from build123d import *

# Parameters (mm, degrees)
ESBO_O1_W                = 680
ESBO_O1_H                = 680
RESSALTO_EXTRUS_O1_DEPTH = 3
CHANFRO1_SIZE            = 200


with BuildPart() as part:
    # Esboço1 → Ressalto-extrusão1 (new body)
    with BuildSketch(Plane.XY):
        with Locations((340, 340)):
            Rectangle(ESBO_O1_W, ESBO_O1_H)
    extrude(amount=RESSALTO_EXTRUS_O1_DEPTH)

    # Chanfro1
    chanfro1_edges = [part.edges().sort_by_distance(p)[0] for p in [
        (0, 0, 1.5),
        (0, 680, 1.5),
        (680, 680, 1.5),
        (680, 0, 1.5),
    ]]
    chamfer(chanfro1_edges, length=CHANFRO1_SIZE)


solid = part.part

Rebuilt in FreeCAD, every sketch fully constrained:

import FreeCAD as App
import Part
import Sketcher
from FreeCAD import Vector
Q = App.Units.Quantity


def edges_at(feature, points):
    """Names of the edges that pass closest to the given points."""
    edges = feature.Shape.Edges
    near = lambda p: min(range(len(edges)), key=lambda i: edges[i].distToShape(Part.Vertex(*p))[0])
    return sorted({f"Edge{near(p) + 1}" for p in points})

doc = App.newDocument("Part")
params = doc.addObject("Spreadsheet::Sheet", "Params")
for row, (alias, value) in enumerate([
    ("sketch1_width", "680 mm"),
    ("pad1_length", "3 mm"),
    ("chamfer_size", "200 mm"),
], start=1):
    params.set(f"A{row}", alias)
    params.set(f"B{row}", "=" + value)
    params.setAlias(f"B{row}", alias)

body = doc.addObject("PartDesign::Body", "Body")

# Sketch on XY plane
sketch1 = body.newObject("Sketcher::SketchObject", "Sketch")
sketch1.AttachmentSupport = (doc.getObject("XY_Plane"), [""])
sketch1.MapMode = "FlatFace"
sketch1.addGeometry([
    Part.LineSegment(Vector(0, 680, 0), Vector(0, 0, 0)),
    Part.LineSegment(Vector(0, 0, 0), Vector(680, 0, 0)),
    Part.LineSegment(Vector(680, 0, 0), Vector(680, 680, 0)),
    Part.LineSegment(Vector(680, 680, 0), Vector(0, 680, 0)),
], False)
sketch1.addConstraint([
    Sketcher.Constraint("Coincident", 0, 2, 1, 1),
    Sketcher.Constraint("Coincident", 1, 2, 2, 1),
    Sketcher.Constraint("Coincident", 2, 2, 3, 1),
    Sketcher.Constraint("Coincident", 3, 2, 0, 1),
    Sketcher.Constraint("Vertical", 0),
    Sketcher.Constraint("Horizontal", 1),
    Sketcher.Constraint("Vertical", 2),
    Sketcher.Constraint("Horizontal", 3),
    Sketcher.Constraint("Coincident", 0, 2, -1, 1),
    Sketcher.Constraint("Equal", 3, 0),
    Sketcher.Constraint("DistanceX", 1, 1, 1, 2, Q("680 mm")),
])
sketch1.setExpression("Constraints[10]", "Params.sketch1_width")
pad1 = body.newObject("PartDesign::Pad", "Pad")
pad1.Profile = sketch1
pad1.setExpression("Length", "Params.pad1_length")
doc.recompute()

chamfer = body.newObject("PartDesign::Chamfer", "Chamfer")
chamfer.Base = (pad1, edges_at(pad1, [
    (0, 0, 1.5),
    (0, 680, 1.5),
    (680, 680, 1.5),
    (680, 0, 1.5),
]))
chamfer.setExpression("Size", "Params.chamfer_size")

doc.recompute()
